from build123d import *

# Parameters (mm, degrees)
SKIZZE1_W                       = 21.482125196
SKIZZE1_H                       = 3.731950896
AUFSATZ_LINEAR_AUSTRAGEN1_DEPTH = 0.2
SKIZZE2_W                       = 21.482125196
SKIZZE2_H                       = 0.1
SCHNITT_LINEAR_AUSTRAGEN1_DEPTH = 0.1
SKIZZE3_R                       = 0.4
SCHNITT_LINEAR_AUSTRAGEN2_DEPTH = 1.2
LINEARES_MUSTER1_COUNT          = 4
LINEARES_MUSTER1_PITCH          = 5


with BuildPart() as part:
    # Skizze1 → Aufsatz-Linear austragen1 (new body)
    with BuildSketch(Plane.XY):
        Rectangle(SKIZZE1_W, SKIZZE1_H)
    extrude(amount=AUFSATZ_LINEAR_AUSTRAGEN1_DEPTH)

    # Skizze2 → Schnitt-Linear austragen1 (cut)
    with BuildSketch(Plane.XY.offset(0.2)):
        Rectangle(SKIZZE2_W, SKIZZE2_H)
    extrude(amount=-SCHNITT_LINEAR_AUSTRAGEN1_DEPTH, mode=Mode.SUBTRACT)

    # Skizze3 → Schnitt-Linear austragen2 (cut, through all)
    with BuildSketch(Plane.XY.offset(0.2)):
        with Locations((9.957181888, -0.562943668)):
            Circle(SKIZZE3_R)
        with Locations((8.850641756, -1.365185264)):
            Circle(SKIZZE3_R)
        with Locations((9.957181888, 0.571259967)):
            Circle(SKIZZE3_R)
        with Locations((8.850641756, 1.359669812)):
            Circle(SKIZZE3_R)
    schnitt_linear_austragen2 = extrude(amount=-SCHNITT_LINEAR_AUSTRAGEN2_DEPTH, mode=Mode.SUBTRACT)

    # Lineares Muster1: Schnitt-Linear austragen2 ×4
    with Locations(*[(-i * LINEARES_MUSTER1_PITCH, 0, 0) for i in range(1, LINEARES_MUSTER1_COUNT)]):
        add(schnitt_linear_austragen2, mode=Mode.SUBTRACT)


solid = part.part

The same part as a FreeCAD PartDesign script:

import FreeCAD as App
import Part
import Sketcher
Q = App.Units.Quantity


def add_polygon(sketch, points):
    """Adds a closed chain of lines whose ends are joined by coincident constraints."""
    first, n = sketch.GeometryCount, len(points)
    for a, b in zip(points, points[1:] + points[:1]):
        sketch.addGeometry(Part.LineSegment(App.Vector(*a, 0), App.Vector(*b, 0)), False)
    for i in range(n):
        sketch.addConstraint(Sketcher.Constraint("Coincident", first + i, 2, first + (i + 1) % n, 1))

doc = App.newDocument("Part")
body = doc.addObject("PartDesign::Body", "Body")

# Sketch on XY plane
sketch1 = doc.addObject("Sketcher::SketchObject", "Sketch")
body.addObject(sketch1)
sketch1.AttachmentSupport = (doc.XY_Plane, [""])
sketch1.MapMode = "FlatFace"
add_polygon(sketch1, [(-10.7, 1.9), (-10.7, -1.9), (10.7, -1.9), (10.7, 1.9)])  # lines 0-3
sketch1.addConstraint([
    Sketcher.Constraint("Vertical", 0),
    Sketcher.Constraint("Horizontal", 1),
    Sketcher.Constraint("Vertical", 2),
    Sketcher.Constraint("Horizontal", 3),
    Sketcher.Constraint("Symmetric", 0, 2, 2, 2, -1, 1),
    Sketcher.Constraint("DistanceY", 0, 2, 0, 1, Q("3.731951 mm")),
    Sketcher.Constraint("DistanceX", 1, 1, 1, 2, Q("21.482125 mm")),
])
pad1 = doc.addObject("PartDesign::Pad", "Pad")
body.addObject(pad1)
pad1.Profile = sketch1
pad1.Length = 0.2

# Sketch on XY plane
sketch2 = doc.addObject("Sketcher::SketchObject", "Sketch001")
body.addObject(sketch2)
sketch2.AttachmentSupport = (doc.XY_Plane, [""])
sketch2.MapMode = "FlatFace"
sketch2.AttachmentOffset = App.Placement(App.Vector(0, 0, 0.2), App.Rotation())
add_polygon(sketch2, [(-10.74, 0.05), (-10.74, -0.05), (10.74, -0.05), (10.74, 0.05)])  # lines 0-3
sketch2.addConstraint([
    Sketcher.Constraint("Vertical", 0),
    Sketcher.Constraint("Horizontal", 1),
    Sketcher.Constraint("Vertical", 2),
    Sketcher.Constraint("Horizontal", 3),
    Sketcher.Constraint("Symmetric", 0, 2, 2, 2, -1, 1),
    Sketcher.Constraint("DistanceY", 0, 2, 0, 1, Q("0.1 mm")),
    Sketcher.Constraint("DistanceX", 1, 1, 1, 2, Q("21.482125 mm")),
])
pocket1 = doc.addObject("PartDesign::Pocket", "Pocket")
body.addObject(pocket1)
pocket1.Profile = sketch2
pocket1.Length = 0.1

# Sketch on XY plane
sketch3 = doc.addObject("Sketcher::SketchObject", "Sketch002")
body.addObject(sketch3)
sketch3.AttachmentSupport = (doc.XY_Plane, [""])
sketch3.MapMode = "FlatFace"
sketch3.AttachmentOffset = App.Placement(App.Vector(0, 0, 0.2), App.Rotation())
sketch3.addGeometry([
    Part.Circle(App.Vector(9.96, -0.56, 0), App.Vector(0, 0, 1), 0.4),
    Part.Circle(App.Vector(8.85, -1.37, 0), App.Vector(0, 0, 1), 0.4),
    Part.Circle(App.Vector(9.96, 0.57, 0), App.Vector(0, 0, 1), 0.4),
    Part.Circle(App.Vector(8.85, 1.36, 0), App.Vector(0, 0, 1), 0.4),
], False)
sketch3.addConstraint([
    Sketcher.Constraint("Equal", 0, 1),
    Sketcher.Constraint("Equal", 1, 2),
    Sketcher.Constraint("Equal", 2, 3),
    Sketcher.Constraint("Vertical", 0, 3, 2, 3),
    Sketcher.Constraint("Vertical", 1, 3, 3, 3),
    Sketcher.Constraint("Diameter", 0, Q("0.8 mm")),
    Sketcher.Constraint("DistanceX", -1, 1, 0, 3, Q("9.957182 mm")),
    Sketcher.Constraint("DistanceX", -1, 1, 1, 3, Q("8.850642 mm")),
    Sketcher.Constraint("DistanceY", -1, 1, 2, 3, Q("0.57126 mm")),
    Sketcher.Constraint("DistanceY", -1, 1, 3, 3, Q("1.35967 mm")),
    Sketcher.Constraint("DistanceY", 1, 3, 0, 3, Q("0.802242 mm")),
    Sketcher.Constraint("DistanceY", 0, 3, -1, 1, Q("0.562944 mm")),
])
pocket2 = doc.addObject("PartDesign::Pocket", "Pocket001")
body.addObject(pocket2)
pocket2.Profile = sketch3
pocket2.Type = "ThroughAll"
doc.recompute()

linearpattern = doc.addObject("PartDesign::LinearPattern", "LinearPattern")
body.addObject(linearpattern)
linearpattern.Originals = [pocket2]
linearpattern.Direction = (doc.X_Axis, [""])
linearpattern.Mode = "offset"
linearpattern.Offset = 5
linearpattern.Occurrences = 4
linearpattern.Reversed = True
body.Tip = linearpattern

doc.recompute()
